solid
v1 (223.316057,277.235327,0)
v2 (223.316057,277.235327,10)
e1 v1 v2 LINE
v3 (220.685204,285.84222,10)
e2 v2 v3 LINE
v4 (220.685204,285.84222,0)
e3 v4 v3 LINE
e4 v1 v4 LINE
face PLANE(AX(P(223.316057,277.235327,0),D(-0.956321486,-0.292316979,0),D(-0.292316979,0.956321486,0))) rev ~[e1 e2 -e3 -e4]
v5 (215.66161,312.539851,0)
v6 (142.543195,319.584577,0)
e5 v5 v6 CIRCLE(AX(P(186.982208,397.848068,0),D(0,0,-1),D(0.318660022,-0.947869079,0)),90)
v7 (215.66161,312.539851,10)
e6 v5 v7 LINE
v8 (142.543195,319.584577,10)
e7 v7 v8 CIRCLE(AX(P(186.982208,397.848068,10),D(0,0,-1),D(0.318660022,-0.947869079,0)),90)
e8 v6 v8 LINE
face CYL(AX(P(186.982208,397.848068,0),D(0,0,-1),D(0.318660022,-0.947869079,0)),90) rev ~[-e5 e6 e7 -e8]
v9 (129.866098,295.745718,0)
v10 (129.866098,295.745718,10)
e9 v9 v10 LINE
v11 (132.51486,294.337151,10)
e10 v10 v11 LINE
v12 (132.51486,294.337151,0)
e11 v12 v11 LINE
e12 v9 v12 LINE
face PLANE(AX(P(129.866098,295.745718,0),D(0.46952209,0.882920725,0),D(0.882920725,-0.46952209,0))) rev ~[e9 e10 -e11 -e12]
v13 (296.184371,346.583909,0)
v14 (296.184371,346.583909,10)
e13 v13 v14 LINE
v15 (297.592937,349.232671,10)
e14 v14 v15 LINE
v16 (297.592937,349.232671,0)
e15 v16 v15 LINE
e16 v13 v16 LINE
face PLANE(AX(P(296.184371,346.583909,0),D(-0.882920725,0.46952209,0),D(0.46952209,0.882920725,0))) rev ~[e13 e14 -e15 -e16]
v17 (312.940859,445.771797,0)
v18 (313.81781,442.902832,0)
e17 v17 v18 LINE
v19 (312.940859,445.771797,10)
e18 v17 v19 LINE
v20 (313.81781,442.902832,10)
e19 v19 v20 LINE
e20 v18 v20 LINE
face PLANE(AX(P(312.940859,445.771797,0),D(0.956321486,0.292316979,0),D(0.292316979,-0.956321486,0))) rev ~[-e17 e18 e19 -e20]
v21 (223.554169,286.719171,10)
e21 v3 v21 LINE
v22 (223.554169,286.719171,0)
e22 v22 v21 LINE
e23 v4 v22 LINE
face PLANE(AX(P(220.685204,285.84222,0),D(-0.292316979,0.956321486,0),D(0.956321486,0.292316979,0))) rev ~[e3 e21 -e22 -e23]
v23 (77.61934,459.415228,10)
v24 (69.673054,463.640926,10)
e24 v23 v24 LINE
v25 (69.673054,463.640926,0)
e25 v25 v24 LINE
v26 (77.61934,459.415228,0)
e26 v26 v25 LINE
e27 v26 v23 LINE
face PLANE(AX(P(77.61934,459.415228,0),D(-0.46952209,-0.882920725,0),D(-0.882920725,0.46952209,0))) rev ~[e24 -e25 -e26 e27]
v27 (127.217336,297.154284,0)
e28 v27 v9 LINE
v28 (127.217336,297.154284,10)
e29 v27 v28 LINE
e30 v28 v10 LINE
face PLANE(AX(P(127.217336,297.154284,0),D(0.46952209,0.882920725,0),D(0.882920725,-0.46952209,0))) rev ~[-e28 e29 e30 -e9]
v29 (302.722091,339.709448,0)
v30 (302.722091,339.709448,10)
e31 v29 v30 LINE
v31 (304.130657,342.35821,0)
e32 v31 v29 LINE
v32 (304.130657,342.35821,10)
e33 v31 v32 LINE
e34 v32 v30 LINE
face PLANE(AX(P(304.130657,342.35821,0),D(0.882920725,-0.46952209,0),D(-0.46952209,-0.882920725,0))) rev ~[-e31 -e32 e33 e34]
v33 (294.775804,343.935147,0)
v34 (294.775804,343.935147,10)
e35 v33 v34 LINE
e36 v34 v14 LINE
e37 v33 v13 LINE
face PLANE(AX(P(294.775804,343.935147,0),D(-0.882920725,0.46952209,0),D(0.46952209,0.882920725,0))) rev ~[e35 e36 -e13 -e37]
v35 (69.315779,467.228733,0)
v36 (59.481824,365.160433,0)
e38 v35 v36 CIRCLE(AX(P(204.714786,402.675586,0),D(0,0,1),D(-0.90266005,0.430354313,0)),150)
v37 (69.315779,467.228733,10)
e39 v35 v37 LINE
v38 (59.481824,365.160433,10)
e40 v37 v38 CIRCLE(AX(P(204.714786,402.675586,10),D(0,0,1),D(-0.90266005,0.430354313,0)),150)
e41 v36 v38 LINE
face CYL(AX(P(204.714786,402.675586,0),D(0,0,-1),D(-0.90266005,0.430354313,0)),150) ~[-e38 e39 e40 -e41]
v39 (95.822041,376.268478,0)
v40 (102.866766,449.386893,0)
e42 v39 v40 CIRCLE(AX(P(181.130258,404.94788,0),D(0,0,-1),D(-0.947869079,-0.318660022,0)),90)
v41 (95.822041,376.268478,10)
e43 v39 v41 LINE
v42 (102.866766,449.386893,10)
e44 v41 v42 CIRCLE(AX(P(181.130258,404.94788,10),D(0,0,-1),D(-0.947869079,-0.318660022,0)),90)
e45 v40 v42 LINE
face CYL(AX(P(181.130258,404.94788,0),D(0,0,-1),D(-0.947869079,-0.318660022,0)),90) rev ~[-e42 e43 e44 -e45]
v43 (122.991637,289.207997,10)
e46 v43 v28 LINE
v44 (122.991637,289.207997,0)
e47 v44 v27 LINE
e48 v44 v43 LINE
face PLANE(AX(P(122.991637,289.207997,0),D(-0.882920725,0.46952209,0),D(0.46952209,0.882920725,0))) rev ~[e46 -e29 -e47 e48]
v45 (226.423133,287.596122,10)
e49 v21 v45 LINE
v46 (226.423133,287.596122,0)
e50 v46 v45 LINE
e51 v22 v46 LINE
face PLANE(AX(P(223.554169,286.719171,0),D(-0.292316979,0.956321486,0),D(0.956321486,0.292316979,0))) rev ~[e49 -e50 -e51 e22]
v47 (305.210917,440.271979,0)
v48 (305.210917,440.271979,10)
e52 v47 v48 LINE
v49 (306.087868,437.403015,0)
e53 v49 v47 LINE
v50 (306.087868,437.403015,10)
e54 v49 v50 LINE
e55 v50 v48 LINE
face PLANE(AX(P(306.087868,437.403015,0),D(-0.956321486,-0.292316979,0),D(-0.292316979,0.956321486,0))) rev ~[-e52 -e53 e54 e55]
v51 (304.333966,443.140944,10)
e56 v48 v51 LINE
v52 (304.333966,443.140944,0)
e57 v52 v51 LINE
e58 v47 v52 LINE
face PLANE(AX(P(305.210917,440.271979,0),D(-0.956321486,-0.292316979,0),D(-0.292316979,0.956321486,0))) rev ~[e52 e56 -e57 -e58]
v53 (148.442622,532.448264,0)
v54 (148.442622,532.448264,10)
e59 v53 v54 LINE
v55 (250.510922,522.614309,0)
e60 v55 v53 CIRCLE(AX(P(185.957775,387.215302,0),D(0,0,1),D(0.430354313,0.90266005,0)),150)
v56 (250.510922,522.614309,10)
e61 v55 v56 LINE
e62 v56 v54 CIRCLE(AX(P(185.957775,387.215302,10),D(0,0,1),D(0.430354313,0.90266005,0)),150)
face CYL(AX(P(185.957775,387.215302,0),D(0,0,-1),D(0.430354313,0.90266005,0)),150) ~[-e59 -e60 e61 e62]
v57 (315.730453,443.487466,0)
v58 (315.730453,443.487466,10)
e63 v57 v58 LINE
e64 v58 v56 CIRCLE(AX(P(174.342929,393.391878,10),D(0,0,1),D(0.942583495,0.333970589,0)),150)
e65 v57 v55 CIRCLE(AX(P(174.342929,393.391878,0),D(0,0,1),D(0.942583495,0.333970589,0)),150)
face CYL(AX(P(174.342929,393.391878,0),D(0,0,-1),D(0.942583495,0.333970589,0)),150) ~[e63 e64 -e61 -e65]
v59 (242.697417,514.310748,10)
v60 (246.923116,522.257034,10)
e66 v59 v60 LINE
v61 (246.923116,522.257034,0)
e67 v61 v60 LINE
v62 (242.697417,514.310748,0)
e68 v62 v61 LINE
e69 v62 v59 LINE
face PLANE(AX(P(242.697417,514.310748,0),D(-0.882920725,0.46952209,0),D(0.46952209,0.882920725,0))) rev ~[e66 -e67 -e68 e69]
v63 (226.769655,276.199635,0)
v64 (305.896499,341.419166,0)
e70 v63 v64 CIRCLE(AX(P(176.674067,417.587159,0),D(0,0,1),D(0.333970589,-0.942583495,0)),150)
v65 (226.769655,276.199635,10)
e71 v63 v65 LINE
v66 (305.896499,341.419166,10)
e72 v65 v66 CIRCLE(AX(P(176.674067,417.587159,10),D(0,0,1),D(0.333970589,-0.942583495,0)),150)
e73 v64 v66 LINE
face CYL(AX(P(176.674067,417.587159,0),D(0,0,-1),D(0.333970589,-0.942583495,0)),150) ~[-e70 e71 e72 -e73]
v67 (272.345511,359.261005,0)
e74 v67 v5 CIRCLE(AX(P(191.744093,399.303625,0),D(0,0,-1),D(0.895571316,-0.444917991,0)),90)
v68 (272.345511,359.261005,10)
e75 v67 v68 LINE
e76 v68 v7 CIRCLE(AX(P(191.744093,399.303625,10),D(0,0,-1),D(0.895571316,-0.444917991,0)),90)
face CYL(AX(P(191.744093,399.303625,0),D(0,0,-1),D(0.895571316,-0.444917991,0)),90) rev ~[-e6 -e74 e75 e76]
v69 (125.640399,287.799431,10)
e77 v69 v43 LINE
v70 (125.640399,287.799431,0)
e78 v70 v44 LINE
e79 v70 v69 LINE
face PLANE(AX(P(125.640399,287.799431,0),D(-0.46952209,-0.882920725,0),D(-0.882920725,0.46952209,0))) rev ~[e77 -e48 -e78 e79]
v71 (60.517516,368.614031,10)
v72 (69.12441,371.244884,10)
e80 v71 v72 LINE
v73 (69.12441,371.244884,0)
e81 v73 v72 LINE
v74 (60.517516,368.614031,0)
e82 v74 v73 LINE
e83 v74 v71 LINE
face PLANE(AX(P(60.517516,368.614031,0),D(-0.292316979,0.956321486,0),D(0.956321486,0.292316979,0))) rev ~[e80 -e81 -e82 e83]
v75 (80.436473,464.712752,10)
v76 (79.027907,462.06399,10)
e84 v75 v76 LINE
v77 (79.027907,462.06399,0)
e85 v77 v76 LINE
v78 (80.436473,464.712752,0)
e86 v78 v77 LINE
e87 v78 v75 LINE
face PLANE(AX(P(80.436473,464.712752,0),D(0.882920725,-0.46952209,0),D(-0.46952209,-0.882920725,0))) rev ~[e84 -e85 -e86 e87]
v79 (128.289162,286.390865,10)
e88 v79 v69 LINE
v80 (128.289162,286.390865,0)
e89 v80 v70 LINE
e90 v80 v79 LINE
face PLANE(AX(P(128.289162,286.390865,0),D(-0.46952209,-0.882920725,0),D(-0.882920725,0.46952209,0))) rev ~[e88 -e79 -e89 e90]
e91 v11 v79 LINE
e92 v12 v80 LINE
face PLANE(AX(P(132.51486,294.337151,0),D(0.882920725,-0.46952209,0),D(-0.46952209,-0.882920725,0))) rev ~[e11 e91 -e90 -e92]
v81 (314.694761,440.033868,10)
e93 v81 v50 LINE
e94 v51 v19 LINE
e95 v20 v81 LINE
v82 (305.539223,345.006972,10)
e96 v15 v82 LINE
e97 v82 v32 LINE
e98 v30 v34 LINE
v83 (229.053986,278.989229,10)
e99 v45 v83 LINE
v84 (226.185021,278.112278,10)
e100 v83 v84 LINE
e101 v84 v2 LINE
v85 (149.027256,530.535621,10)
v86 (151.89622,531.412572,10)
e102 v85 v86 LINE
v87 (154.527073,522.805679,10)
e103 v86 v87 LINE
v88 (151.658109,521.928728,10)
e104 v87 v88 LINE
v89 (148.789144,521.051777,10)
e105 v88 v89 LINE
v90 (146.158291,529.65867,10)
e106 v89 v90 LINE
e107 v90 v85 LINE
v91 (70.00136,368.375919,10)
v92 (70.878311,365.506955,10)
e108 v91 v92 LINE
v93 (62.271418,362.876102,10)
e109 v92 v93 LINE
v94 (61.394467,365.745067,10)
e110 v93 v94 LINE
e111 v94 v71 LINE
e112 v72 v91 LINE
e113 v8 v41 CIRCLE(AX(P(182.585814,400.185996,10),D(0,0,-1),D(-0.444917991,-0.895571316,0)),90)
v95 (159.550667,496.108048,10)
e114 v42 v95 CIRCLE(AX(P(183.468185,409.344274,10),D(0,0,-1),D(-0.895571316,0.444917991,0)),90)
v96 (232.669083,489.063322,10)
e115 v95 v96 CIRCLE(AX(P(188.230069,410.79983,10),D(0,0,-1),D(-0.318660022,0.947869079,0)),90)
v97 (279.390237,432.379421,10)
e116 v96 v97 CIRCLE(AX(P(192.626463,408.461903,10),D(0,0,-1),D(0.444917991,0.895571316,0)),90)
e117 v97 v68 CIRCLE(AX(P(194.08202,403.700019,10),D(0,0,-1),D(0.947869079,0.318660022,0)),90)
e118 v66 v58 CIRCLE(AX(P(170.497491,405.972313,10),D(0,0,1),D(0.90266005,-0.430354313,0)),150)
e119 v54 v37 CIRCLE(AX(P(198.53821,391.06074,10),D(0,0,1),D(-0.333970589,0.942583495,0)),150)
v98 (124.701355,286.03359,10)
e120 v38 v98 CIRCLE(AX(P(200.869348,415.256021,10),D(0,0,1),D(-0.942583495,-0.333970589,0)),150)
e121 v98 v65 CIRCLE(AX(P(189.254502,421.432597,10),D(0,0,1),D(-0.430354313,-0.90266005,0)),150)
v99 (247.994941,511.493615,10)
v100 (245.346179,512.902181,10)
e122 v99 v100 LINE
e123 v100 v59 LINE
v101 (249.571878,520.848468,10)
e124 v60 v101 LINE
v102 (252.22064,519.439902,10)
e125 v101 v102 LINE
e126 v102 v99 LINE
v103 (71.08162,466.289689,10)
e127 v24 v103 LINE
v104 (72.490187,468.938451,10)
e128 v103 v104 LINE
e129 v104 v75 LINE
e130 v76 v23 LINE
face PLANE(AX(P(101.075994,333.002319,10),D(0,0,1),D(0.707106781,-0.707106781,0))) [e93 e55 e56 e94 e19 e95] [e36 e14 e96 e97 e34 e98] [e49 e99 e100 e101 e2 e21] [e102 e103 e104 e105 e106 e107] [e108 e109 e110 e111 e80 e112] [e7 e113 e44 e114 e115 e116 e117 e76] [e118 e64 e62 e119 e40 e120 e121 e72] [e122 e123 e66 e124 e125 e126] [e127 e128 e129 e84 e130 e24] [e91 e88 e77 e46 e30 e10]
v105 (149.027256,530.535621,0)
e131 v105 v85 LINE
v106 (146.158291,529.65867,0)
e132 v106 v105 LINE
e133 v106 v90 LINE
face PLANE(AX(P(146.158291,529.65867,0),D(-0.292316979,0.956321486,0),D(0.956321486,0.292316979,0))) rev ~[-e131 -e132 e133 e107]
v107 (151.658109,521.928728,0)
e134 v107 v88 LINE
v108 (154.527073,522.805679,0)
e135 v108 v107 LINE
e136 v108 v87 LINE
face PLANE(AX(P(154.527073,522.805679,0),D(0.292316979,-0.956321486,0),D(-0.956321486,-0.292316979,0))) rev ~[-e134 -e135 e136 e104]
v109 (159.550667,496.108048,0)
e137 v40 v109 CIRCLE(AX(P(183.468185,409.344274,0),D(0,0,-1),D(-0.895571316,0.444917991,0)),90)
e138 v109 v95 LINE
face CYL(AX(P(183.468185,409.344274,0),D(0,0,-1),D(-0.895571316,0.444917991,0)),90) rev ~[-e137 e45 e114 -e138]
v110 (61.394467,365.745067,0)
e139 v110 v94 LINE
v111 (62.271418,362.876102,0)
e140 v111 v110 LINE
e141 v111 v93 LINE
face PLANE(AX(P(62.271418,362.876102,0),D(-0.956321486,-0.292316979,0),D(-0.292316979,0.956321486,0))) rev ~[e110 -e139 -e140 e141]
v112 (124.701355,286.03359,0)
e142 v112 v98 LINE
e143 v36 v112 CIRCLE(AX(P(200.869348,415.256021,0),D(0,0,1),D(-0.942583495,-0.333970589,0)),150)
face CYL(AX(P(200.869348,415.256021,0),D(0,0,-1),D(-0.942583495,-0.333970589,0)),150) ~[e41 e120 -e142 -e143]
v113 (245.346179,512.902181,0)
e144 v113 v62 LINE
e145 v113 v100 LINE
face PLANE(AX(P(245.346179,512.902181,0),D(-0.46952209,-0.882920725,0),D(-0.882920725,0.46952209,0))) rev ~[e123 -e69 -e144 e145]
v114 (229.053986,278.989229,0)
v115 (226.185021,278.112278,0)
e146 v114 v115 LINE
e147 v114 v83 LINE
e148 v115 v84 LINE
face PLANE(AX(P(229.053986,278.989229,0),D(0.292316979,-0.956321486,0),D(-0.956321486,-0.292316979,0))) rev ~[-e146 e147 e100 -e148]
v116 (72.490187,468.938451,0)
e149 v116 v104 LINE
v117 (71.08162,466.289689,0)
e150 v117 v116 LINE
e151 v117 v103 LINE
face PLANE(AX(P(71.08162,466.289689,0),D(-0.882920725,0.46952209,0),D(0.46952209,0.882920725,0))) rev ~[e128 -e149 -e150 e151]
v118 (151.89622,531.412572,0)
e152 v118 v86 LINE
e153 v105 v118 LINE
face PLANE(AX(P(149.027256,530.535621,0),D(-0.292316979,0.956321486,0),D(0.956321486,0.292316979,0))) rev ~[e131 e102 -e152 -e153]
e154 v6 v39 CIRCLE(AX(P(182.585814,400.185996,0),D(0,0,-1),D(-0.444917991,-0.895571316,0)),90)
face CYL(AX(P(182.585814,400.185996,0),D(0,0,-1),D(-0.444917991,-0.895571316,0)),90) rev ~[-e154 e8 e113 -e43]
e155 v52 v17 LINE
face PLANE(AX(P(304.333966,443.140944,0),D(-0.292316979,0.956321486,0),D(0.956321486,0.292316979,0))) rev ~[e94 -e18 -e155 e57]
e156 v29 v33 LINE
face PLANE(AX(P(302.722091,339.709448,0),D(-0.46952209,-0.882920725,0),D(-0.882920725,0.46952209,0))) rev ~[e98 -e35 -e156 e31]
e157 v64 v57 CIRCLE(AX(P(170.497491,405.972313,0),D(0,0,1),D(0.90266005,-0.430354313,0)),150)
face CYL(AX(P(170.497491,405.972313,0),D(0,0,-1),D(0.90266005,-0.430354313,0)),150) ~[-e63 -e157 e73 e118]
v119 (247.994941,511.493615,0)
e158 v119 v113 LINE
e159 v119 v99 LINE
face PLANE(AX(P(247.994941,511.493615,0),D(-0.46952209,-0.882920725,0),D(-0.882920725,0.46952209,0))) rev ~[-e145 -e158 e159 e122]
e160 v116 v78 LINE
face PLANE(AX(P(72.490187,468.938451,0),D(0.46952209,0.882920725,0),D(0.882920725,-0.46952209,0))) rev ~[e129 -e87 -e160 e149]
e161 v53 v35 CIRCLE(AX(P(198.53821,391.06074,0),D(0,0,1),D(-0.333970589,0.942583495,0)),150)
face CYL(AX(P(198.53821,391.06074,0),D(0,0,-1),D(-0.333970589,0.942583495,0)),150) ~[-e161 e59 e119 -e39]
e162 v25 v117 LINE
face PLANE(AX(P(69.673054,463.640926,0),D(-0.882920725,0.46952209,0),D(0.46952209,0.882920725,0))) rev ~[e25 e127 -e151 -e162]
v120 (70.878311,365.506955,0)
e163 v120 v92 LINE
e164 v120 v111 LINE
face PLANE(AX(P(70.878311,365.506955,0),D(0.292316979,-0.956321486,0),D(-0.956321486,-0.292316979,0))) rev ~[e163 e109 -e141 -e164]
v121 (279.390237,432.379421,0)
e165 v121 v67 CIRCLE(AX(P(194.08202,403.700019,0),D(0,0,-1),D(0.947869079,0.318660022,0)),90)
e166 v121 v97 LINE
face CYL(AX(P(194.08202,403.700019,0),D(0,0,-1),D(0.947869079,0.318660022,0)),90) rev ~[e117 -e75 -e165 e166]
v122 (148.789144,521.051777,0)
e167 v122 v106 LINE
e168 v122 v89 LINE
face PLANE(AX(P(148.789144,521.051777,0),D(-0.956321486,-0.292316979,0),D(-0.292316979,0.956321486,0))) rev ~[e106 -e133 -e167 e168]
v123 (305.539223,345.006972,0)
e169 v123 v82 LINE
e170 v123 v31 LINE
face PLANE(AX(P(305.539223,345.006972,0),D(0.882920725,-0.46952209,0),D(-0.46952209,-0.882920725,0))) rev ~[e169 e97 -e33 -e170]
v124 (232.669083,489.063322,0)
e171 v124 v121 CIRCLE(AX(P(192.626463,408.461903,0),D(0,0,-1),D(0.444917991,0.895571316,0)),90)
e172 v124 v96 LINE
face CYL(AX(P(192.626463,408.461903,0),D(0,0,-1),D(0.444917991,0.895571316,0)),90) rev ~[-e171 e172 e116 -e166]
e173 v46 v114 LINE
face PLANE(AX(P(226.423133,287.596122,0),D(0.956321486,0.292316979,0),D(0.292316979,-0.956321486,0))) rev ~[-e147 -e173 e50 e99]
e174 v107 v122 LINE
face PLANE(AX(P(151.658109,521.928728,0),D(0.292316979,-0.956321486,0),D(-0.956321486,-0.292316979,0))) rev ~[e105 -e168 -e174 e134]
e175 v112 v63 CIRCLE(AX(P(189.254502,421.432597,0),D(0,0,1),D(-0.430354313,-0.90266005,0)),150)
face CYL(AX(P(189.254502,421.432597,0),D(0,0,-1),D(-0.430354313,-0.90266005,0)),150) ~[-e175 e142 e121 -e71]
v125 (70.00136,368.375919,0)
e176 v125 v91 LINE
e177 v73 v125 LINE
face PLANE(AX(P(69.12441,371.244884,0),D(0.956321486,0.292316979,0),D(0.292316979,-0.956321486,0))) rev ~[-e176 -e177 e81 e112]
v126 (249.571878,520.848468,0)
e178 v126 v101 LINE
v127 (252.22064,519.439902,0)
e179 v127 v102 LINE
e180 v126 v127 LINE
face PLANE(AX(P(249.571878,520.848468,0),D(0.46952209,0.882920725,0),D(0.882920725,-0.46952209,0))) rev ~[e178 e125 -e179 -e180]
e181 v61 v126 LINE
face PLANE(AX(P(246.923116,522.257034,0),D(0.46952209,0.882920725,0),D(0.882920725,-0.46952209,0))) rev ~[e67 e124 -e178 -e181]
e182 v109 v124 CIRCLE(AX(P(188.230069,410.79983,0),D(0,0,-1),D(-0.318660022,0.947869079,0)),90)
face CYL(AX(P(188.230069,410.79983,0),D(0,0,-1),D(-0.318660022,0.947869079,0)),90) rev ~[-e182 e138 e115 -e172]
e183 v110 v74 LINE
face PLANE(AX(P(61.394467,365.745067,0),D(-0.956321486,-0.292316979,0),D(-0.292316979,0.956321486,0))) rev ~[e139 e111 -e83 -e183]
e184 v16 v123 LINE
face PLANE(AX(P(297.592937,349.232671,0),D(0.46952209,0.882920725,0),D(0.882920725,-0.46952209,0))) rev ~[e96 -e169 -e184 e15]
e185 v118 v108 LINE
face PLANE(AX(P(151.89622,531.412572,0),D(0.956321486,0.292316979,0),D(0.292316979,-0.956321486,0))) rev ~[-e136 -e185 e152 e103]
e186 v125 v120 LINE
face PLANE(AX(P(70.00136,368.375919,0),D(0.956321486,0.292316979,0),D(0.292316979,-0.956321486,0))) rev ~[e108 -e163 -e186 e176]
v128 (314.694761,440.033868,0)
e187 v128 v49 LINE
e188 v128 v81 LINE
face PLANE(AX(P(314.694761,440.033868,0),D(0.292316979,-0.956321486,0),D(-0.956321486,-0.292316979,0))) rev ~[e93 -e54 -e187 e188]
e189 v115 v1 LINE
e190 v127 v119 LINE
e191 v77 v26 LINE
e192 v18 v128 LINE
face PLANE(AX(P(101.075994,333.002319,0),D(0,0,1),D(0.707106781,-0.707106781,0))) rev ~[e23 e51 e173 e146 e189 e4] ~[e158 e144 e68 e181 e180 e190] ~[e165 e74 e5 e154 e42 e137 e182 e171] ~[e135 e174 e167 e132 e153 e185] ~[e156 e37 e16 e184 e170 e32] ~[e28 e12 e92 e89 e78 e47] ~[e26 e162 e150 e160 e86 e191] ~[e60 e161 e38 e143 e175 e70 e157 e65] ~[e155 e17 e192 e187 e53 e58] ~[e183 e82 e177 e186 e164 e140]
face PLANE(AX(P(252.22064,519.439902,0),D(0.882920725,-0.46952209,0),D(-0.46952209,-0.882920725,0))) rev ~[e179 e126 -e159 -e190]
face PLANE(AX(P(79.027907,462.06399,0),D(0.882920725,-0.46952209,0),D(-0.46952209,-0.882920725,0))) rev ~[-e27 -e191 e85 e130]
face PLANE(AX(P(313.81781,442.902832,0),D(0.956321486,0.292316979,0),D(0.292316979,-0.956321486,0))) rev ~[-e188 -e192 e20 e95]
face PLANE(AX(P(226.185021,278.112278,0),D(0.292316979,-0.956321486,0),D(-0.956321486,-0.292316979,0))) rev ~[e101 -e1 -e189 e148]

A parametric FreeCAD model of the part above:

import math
import FreeCAD as App
import Part
import Sketcher

doc = App.newDocument("Part")
body = doc.addObject("PartDesign::Body", "Body")

# Sketch on XY plane
sketch1 = body.newObject("Sketcher::SketchObject", "Sketch")
sketch1.AttachmentSupport = (doc.getObject("XY_Plane"), [""])
sketch1.MapMode = "FlatFace"
sketch1.addGeometry(Part.LineSegment(App.Vector(142.5, 319.6, 0), App.Vector(129.9, 295.7, 0)), False)
sketch1.addGeometry(Part.LineSegment(App.Vector(129.9, 295.7, 0), App.Vector(132.5, 294.3, 0)), False)
sketch1.addGeometry(Part.LineSegment(App.Vector(132.5, 294.3, 0), App.Vector(128.3, 286.4, 0)), False)
sketch1.addGeometry(Part.LineSegment(App.Vector(128.3, 286.4, 0), App.Vector(125.6, 287.8, 0)), False)
sketch1.addGeometry(Part.LineSegment(App.Vector(125.6, 287.8, 0), App.Vector(124.7, 286, 0)), False)
sketch1.addGeometry(Part.ArcOfCircle(Part.Circle(App.Vector(189.3, 421.4, 0), App.Vector(0, 0, 1), 150), math.radians(-115), math.radians(-76)), False)
sketch1.addGeometry(Part.LineSegment(App.Vector(226.8, 276.2, 0), App.Vector(226.2, 278.1, 0)), False)
sketch1.addGeometry(Part.LineSegment(App.Vector(226.2, 278.1, 0), App.Vector(223.3, 277.2, 0)), False)
sketch1.addGeometry(Part.LineSegment(App.Vector(223.3, 277.2, 0), App.Vector(220.7, 285.8, 0)), False)
sketch1.addGeometry(Part.LineSegment(App.Vector(220.7, 285.8, 0), App.Vector(223.6, 286.7, 0)), False)
sketch1.addGeometry(Part.LineSegment(App.Vector(223.6, 286.7, 0), App.Vector(215.7, 312.5, 0)), False)
sketch1.addGeometry(Part.ArcOfCircle(Part.Circle(App.Vector(187, 397.8, 0), App.Vector(0, 0, 1), 90), math.radians(-120), math.radians(-71)), False)
sketch1.addConstraint(Sketcher.Constraint("Coincident", 0, 2, 1, 1))
sketch1.addConstraint(Sketcher.Constraint("Coincident", 1, 2, 2, 1))
sketch1.addConstraint(Sketcher.Constraint("Coincident", 2, 2, 3, 1))
sketch1.addConstraint(Sketcher.Constraint("Coincident", 3, 2, 4, 1))
sketch1.addConstraint(Sketcher.Constraint("Coincident", 4, 2, 5, 1))
sketch1.addConstraint(Sketcher.Constraint("Coincident", 5, 2, 6, 1))
sketch1.addConstraint(Sketcher.Constraint("Coincident", 6, 2, 7, 1))
sketch1.addConstraint(Sketcher.Constraint("Coincident", 7, 2, 8, 1))
sketch1.addConstraint(Sketcher.Constraint("Coincident", 8, 2, 9, 1))
sketch1.addConstraint(Sketcher.Constraint("Coincident", 9, 2, 10, 1))
sketch1.addConstraint(Sketcher.Constraint("Coincident", 10, 2, 11, 2))
sketch1.addConstraint(Sketcher.Constraint("Coincident", 11, 1, 0, 1))
sketch1.addConstraint(Sketcher.Constraint("Perpendicular", 0, 1))
sketch1.addConstraint(Sketcher.Constraint("Perpendicular", 1, 2))
sketch1.addConstraint(Sketcher.Constraint("Perpendicular", 2, 3))
sketch1.addConstraint(Sketcher.Constraint("Perpendicular", 3, 4))
sketch1.addConstraint(Sketcher.Constraint("Perpendicular", 6, 7))
sketch1.addConstraint(Sketcher.Constraint("Perpendicular", 7, 8))
sketch1.addConstraint(Sketcher.Constraint("Perpendicular", 8, 9))
sketch1.addConstraint(Sketcher.Constraint("Perpendicular", 9, 10))
sketch1.addConstraint(Sketcher.Constraint("Equal", 1, 3))
sketch1.addConstraint(Sketcher.Constraint("Equal", 4, 6))
sketch1.addConstraint(Sketcher.Constraint("Equal", 3, 7))
sketch1.addConstraint(Sketcher.Constraint("Equal", 2, 8))
sketch1.addConstraint(Sketcher.Constraint("Equal", 7, 9))
sketch1.addConstraint(Sketcher.Constraint("Equal", 0, 10))
sketch1.addConstraint(Sketcher.Constraint("Radius", 5, 150.0))
sketch1.addConstraint(Sketcher.Constraint("Radius", 11, 90.0))
sketch1.addConstraint(Sketcher.Constraint("Distance", 0, 27.0))
sketch1.addConstraint(Sketcher.Constraint("Distance", 1, 3.0))
sketch1.addConstraint(Sketcher.Constraint("Distance", 2, 9.0))
sketch1.addConstraint(Sketcher.Constraint("Distance", 4, 2.0))
sketch1.addConstraint(Sketcher.Constraint("DistanceX", -1, 1, 0, 2, 129.866098))
sketch1.addConstraint(Sketcher.Constraint("DistanceX", -1, 1, 3, 2, 125.640399))
sketch1.addConstraint(Sketcher.Constraint("DistanceX", 4, 2, 5, 2, 102.0683))
sketch1.addConstraint(Sketcher.Constraint("DistanceX", -1, 1, 11, 3, 186.982208))
sketch1.addConstraint(Sketcher.Constraint("DistanceY", -1, 1, 11, 3, 397.848068))
sketch1.addConstraint(Sketcher.Constraint("DistanceX", -1, 1, 6, 2, 226.185021))
pad1 = body.newObject("PartDesign::Pad", "Pad")
pad1.Profile = sketch1
pad1.Length = 10
doc.recompute()

datumline = body.newObject("PartDesign::Line", "DatumLine")
datumline.Placement = App.Placement(App.Vector(187.606139, 404.323949, 0), App.Rotation(App.Vector(0, 0, 1), App.Vector(0, 0, 1)))
polarpattern = body.newObject("PartDesign::PolarPattern", "PolarPattern")
polarpattern.Originals = [pad1]
polarpattern.Axis = (datumline, [""])
polarpattern.Angle = 360
polarpattern.Occurrences = 8
body.Tip = polarpattern

doc.recompute()
